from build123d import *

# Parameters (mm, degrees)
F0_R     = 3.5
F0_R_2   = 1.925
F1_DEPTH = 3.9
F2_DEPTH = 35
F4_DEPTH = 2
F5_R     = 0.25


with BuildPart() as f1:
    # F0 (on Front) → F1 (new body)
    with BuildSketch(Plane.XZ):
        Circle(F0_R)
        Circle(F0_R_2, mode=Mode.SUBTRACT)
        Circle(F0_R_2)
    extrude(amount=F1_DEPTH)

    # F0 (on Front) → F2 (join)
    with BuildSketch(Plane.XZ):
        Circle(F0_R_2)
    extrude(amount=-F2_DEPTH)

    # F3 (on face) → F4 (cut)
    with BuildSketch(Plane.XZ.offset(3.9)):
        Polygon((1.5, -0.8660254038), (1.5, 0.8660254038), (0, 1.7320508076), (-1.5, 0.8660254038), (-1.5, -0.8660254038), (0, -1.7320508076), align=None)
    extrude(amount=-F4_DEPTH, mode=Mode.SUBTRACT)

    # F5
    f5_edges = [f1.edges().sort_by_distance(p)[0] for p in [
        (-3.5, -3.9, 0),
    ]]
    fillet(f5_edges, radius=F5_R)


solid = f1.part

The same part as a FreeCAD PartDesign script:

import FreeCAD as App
import Part
import Sketcher
Q = App.Units.Quantity


def edges_at(feature, points):
    """Names of the edges that pass closest to the given points."""
    edges = feature.Shape.Edges
    near = lambda p: min(range(len(edges)), key=lambda i: edges[i].distToShape(Part.Vertex(*p))[0])
    return sorted({f"Edge{near(p) + 1}" for p in points})


def add_polygon(sketch, points):
    """Adds a closed chain of lines whose ends are joined by coincident constraints."""
    first, n = sketch.GeometryCount, len(points)
    for a, b in zip(points, points[1:] + points[:1]):
        sketch.addGeometry(Part.LineSegment(App.Vector(*a, 0), App.Vector(*b, 0)), False)
    for i in range(n):
        sketch.addConstraint(Sketcher.Constraint("Coincident", first + i, 2, first + (i + 1) % n, 1))

doc = App.newDocument("Part")
body = doc.addObject("PartDesign::Body", "Body")

# Sketch on XZ plane
sketch1 = doc.addObject("Sketcher::SketchObject", "Sketch")
body.addObject(sketch1)
sketch1.AttachmentSupport = (doc.XZ_Plane, [""])
sketch1.MapMode = "FlatFace"
sketch1.addGeometry(Part.Circle(App.Vector(0, 0, 0), App.Vector(0, 0, 1), 3.5), False)
sketch1.addConstraint([
    Sketcher.Constraint("Coincident", 0, 3, -1, 1),
    Sketcher.Constraint("Diameter", 0, Q("7 mm")),
])
pad1 = doc.addObject("PartDesign::Pad", "Pad")
body.addObject(pad1)
pad1.Profile = sketch1
pad1.Length = 3.9

# Sketch on XZ plane
sketch2 = doc.addObject("Sketcher::SketchObject", "Sketch001")
body.addObject(sketch2)
sketch2.AttachmentSupport = (doc.XZ_Plane, [""])
sketch2.MapMode = "FlatFace"
sketch2.addGeometry(Part.Circle(App.Vector(0, 0, 0), App.Vector(0, 0, 1), 1.925), False)
sketch2.addConstraint([
    Sketcher.Constraint("Coincident", 0, 3, -1, 1),
    Sketcher.Constraint("Diameter", 0, Q("3.85 mm")),
])
pad2 = doc.addObject("PartDesign::Pad", "Pad001")
body.addObject(pad2)
pad2.Profile = sketch2
pad2.Length = 35
pad2.Reversed = True

# Sketch on XZ plane
sketch3 = doc.addObject("Sketcher::SketchObject", "Sketch002")
body.addObject(sketch3)
sketch3.AttachmentSupport = (doc.XZ_Plane, [""])
sketch3.MapMode = "FlatFace"
sketch3.AttachmentOffset = App.Placement(App.Vector(0, 0, 3.9), App.Rotation())
add_polygon(sketch3, [(1.5, -0.866025), (1.5, 0.866025), (0, 1.732051), (-1.5, 0.866025), (-1.5, -0.866025), (0, -1.732051)])  # lines 0-5
sketch3.addConstraint([
    Sketcher.Constraint("Vertical", 0),
    Sketcher.Constraint("Vertical", 3),
    Sketcher.Constraint("Symmetric", 0, 2, 3, 2, -1, 1),
    Sketcher.Constraint("Symmetric", 1, 2, 4, 2, -1, 1),
    Sketcher.Constraint("PointOnObject", 1, 2, -2),
    Sketcher.Constraint("Parallel", 2, 5),
    Sketcher.Constraint("Horizontal", 0, 2, 2, 2),
    Sketcher.Constraint("Angle", 1, Q("150 deg")),
    Sketcher.Constraint("DistanceX", 2, 2, 0, 2, Q("3 mm")),
    Sketcher.Constraint("DistanceY", 0, 1, 0, 2, Q("1.732051 mm")),
])
pocket1 = doc.addObject("PartDesign::Pocket", "Pocket")
body.addObject(pocket1)
pocket1.Profile = sketch3
pocket1.Length = 2
doc.recompute()

fillet = doc.addObject("PartDesign::Fillet", "Fillet")
body.addObject(fillet)
fillet.Base = (pocket1, edges_at(pocket1, [(-3.5, -3.9, 0)]))
fillet.Radius = 0.25

doc.recompute()
